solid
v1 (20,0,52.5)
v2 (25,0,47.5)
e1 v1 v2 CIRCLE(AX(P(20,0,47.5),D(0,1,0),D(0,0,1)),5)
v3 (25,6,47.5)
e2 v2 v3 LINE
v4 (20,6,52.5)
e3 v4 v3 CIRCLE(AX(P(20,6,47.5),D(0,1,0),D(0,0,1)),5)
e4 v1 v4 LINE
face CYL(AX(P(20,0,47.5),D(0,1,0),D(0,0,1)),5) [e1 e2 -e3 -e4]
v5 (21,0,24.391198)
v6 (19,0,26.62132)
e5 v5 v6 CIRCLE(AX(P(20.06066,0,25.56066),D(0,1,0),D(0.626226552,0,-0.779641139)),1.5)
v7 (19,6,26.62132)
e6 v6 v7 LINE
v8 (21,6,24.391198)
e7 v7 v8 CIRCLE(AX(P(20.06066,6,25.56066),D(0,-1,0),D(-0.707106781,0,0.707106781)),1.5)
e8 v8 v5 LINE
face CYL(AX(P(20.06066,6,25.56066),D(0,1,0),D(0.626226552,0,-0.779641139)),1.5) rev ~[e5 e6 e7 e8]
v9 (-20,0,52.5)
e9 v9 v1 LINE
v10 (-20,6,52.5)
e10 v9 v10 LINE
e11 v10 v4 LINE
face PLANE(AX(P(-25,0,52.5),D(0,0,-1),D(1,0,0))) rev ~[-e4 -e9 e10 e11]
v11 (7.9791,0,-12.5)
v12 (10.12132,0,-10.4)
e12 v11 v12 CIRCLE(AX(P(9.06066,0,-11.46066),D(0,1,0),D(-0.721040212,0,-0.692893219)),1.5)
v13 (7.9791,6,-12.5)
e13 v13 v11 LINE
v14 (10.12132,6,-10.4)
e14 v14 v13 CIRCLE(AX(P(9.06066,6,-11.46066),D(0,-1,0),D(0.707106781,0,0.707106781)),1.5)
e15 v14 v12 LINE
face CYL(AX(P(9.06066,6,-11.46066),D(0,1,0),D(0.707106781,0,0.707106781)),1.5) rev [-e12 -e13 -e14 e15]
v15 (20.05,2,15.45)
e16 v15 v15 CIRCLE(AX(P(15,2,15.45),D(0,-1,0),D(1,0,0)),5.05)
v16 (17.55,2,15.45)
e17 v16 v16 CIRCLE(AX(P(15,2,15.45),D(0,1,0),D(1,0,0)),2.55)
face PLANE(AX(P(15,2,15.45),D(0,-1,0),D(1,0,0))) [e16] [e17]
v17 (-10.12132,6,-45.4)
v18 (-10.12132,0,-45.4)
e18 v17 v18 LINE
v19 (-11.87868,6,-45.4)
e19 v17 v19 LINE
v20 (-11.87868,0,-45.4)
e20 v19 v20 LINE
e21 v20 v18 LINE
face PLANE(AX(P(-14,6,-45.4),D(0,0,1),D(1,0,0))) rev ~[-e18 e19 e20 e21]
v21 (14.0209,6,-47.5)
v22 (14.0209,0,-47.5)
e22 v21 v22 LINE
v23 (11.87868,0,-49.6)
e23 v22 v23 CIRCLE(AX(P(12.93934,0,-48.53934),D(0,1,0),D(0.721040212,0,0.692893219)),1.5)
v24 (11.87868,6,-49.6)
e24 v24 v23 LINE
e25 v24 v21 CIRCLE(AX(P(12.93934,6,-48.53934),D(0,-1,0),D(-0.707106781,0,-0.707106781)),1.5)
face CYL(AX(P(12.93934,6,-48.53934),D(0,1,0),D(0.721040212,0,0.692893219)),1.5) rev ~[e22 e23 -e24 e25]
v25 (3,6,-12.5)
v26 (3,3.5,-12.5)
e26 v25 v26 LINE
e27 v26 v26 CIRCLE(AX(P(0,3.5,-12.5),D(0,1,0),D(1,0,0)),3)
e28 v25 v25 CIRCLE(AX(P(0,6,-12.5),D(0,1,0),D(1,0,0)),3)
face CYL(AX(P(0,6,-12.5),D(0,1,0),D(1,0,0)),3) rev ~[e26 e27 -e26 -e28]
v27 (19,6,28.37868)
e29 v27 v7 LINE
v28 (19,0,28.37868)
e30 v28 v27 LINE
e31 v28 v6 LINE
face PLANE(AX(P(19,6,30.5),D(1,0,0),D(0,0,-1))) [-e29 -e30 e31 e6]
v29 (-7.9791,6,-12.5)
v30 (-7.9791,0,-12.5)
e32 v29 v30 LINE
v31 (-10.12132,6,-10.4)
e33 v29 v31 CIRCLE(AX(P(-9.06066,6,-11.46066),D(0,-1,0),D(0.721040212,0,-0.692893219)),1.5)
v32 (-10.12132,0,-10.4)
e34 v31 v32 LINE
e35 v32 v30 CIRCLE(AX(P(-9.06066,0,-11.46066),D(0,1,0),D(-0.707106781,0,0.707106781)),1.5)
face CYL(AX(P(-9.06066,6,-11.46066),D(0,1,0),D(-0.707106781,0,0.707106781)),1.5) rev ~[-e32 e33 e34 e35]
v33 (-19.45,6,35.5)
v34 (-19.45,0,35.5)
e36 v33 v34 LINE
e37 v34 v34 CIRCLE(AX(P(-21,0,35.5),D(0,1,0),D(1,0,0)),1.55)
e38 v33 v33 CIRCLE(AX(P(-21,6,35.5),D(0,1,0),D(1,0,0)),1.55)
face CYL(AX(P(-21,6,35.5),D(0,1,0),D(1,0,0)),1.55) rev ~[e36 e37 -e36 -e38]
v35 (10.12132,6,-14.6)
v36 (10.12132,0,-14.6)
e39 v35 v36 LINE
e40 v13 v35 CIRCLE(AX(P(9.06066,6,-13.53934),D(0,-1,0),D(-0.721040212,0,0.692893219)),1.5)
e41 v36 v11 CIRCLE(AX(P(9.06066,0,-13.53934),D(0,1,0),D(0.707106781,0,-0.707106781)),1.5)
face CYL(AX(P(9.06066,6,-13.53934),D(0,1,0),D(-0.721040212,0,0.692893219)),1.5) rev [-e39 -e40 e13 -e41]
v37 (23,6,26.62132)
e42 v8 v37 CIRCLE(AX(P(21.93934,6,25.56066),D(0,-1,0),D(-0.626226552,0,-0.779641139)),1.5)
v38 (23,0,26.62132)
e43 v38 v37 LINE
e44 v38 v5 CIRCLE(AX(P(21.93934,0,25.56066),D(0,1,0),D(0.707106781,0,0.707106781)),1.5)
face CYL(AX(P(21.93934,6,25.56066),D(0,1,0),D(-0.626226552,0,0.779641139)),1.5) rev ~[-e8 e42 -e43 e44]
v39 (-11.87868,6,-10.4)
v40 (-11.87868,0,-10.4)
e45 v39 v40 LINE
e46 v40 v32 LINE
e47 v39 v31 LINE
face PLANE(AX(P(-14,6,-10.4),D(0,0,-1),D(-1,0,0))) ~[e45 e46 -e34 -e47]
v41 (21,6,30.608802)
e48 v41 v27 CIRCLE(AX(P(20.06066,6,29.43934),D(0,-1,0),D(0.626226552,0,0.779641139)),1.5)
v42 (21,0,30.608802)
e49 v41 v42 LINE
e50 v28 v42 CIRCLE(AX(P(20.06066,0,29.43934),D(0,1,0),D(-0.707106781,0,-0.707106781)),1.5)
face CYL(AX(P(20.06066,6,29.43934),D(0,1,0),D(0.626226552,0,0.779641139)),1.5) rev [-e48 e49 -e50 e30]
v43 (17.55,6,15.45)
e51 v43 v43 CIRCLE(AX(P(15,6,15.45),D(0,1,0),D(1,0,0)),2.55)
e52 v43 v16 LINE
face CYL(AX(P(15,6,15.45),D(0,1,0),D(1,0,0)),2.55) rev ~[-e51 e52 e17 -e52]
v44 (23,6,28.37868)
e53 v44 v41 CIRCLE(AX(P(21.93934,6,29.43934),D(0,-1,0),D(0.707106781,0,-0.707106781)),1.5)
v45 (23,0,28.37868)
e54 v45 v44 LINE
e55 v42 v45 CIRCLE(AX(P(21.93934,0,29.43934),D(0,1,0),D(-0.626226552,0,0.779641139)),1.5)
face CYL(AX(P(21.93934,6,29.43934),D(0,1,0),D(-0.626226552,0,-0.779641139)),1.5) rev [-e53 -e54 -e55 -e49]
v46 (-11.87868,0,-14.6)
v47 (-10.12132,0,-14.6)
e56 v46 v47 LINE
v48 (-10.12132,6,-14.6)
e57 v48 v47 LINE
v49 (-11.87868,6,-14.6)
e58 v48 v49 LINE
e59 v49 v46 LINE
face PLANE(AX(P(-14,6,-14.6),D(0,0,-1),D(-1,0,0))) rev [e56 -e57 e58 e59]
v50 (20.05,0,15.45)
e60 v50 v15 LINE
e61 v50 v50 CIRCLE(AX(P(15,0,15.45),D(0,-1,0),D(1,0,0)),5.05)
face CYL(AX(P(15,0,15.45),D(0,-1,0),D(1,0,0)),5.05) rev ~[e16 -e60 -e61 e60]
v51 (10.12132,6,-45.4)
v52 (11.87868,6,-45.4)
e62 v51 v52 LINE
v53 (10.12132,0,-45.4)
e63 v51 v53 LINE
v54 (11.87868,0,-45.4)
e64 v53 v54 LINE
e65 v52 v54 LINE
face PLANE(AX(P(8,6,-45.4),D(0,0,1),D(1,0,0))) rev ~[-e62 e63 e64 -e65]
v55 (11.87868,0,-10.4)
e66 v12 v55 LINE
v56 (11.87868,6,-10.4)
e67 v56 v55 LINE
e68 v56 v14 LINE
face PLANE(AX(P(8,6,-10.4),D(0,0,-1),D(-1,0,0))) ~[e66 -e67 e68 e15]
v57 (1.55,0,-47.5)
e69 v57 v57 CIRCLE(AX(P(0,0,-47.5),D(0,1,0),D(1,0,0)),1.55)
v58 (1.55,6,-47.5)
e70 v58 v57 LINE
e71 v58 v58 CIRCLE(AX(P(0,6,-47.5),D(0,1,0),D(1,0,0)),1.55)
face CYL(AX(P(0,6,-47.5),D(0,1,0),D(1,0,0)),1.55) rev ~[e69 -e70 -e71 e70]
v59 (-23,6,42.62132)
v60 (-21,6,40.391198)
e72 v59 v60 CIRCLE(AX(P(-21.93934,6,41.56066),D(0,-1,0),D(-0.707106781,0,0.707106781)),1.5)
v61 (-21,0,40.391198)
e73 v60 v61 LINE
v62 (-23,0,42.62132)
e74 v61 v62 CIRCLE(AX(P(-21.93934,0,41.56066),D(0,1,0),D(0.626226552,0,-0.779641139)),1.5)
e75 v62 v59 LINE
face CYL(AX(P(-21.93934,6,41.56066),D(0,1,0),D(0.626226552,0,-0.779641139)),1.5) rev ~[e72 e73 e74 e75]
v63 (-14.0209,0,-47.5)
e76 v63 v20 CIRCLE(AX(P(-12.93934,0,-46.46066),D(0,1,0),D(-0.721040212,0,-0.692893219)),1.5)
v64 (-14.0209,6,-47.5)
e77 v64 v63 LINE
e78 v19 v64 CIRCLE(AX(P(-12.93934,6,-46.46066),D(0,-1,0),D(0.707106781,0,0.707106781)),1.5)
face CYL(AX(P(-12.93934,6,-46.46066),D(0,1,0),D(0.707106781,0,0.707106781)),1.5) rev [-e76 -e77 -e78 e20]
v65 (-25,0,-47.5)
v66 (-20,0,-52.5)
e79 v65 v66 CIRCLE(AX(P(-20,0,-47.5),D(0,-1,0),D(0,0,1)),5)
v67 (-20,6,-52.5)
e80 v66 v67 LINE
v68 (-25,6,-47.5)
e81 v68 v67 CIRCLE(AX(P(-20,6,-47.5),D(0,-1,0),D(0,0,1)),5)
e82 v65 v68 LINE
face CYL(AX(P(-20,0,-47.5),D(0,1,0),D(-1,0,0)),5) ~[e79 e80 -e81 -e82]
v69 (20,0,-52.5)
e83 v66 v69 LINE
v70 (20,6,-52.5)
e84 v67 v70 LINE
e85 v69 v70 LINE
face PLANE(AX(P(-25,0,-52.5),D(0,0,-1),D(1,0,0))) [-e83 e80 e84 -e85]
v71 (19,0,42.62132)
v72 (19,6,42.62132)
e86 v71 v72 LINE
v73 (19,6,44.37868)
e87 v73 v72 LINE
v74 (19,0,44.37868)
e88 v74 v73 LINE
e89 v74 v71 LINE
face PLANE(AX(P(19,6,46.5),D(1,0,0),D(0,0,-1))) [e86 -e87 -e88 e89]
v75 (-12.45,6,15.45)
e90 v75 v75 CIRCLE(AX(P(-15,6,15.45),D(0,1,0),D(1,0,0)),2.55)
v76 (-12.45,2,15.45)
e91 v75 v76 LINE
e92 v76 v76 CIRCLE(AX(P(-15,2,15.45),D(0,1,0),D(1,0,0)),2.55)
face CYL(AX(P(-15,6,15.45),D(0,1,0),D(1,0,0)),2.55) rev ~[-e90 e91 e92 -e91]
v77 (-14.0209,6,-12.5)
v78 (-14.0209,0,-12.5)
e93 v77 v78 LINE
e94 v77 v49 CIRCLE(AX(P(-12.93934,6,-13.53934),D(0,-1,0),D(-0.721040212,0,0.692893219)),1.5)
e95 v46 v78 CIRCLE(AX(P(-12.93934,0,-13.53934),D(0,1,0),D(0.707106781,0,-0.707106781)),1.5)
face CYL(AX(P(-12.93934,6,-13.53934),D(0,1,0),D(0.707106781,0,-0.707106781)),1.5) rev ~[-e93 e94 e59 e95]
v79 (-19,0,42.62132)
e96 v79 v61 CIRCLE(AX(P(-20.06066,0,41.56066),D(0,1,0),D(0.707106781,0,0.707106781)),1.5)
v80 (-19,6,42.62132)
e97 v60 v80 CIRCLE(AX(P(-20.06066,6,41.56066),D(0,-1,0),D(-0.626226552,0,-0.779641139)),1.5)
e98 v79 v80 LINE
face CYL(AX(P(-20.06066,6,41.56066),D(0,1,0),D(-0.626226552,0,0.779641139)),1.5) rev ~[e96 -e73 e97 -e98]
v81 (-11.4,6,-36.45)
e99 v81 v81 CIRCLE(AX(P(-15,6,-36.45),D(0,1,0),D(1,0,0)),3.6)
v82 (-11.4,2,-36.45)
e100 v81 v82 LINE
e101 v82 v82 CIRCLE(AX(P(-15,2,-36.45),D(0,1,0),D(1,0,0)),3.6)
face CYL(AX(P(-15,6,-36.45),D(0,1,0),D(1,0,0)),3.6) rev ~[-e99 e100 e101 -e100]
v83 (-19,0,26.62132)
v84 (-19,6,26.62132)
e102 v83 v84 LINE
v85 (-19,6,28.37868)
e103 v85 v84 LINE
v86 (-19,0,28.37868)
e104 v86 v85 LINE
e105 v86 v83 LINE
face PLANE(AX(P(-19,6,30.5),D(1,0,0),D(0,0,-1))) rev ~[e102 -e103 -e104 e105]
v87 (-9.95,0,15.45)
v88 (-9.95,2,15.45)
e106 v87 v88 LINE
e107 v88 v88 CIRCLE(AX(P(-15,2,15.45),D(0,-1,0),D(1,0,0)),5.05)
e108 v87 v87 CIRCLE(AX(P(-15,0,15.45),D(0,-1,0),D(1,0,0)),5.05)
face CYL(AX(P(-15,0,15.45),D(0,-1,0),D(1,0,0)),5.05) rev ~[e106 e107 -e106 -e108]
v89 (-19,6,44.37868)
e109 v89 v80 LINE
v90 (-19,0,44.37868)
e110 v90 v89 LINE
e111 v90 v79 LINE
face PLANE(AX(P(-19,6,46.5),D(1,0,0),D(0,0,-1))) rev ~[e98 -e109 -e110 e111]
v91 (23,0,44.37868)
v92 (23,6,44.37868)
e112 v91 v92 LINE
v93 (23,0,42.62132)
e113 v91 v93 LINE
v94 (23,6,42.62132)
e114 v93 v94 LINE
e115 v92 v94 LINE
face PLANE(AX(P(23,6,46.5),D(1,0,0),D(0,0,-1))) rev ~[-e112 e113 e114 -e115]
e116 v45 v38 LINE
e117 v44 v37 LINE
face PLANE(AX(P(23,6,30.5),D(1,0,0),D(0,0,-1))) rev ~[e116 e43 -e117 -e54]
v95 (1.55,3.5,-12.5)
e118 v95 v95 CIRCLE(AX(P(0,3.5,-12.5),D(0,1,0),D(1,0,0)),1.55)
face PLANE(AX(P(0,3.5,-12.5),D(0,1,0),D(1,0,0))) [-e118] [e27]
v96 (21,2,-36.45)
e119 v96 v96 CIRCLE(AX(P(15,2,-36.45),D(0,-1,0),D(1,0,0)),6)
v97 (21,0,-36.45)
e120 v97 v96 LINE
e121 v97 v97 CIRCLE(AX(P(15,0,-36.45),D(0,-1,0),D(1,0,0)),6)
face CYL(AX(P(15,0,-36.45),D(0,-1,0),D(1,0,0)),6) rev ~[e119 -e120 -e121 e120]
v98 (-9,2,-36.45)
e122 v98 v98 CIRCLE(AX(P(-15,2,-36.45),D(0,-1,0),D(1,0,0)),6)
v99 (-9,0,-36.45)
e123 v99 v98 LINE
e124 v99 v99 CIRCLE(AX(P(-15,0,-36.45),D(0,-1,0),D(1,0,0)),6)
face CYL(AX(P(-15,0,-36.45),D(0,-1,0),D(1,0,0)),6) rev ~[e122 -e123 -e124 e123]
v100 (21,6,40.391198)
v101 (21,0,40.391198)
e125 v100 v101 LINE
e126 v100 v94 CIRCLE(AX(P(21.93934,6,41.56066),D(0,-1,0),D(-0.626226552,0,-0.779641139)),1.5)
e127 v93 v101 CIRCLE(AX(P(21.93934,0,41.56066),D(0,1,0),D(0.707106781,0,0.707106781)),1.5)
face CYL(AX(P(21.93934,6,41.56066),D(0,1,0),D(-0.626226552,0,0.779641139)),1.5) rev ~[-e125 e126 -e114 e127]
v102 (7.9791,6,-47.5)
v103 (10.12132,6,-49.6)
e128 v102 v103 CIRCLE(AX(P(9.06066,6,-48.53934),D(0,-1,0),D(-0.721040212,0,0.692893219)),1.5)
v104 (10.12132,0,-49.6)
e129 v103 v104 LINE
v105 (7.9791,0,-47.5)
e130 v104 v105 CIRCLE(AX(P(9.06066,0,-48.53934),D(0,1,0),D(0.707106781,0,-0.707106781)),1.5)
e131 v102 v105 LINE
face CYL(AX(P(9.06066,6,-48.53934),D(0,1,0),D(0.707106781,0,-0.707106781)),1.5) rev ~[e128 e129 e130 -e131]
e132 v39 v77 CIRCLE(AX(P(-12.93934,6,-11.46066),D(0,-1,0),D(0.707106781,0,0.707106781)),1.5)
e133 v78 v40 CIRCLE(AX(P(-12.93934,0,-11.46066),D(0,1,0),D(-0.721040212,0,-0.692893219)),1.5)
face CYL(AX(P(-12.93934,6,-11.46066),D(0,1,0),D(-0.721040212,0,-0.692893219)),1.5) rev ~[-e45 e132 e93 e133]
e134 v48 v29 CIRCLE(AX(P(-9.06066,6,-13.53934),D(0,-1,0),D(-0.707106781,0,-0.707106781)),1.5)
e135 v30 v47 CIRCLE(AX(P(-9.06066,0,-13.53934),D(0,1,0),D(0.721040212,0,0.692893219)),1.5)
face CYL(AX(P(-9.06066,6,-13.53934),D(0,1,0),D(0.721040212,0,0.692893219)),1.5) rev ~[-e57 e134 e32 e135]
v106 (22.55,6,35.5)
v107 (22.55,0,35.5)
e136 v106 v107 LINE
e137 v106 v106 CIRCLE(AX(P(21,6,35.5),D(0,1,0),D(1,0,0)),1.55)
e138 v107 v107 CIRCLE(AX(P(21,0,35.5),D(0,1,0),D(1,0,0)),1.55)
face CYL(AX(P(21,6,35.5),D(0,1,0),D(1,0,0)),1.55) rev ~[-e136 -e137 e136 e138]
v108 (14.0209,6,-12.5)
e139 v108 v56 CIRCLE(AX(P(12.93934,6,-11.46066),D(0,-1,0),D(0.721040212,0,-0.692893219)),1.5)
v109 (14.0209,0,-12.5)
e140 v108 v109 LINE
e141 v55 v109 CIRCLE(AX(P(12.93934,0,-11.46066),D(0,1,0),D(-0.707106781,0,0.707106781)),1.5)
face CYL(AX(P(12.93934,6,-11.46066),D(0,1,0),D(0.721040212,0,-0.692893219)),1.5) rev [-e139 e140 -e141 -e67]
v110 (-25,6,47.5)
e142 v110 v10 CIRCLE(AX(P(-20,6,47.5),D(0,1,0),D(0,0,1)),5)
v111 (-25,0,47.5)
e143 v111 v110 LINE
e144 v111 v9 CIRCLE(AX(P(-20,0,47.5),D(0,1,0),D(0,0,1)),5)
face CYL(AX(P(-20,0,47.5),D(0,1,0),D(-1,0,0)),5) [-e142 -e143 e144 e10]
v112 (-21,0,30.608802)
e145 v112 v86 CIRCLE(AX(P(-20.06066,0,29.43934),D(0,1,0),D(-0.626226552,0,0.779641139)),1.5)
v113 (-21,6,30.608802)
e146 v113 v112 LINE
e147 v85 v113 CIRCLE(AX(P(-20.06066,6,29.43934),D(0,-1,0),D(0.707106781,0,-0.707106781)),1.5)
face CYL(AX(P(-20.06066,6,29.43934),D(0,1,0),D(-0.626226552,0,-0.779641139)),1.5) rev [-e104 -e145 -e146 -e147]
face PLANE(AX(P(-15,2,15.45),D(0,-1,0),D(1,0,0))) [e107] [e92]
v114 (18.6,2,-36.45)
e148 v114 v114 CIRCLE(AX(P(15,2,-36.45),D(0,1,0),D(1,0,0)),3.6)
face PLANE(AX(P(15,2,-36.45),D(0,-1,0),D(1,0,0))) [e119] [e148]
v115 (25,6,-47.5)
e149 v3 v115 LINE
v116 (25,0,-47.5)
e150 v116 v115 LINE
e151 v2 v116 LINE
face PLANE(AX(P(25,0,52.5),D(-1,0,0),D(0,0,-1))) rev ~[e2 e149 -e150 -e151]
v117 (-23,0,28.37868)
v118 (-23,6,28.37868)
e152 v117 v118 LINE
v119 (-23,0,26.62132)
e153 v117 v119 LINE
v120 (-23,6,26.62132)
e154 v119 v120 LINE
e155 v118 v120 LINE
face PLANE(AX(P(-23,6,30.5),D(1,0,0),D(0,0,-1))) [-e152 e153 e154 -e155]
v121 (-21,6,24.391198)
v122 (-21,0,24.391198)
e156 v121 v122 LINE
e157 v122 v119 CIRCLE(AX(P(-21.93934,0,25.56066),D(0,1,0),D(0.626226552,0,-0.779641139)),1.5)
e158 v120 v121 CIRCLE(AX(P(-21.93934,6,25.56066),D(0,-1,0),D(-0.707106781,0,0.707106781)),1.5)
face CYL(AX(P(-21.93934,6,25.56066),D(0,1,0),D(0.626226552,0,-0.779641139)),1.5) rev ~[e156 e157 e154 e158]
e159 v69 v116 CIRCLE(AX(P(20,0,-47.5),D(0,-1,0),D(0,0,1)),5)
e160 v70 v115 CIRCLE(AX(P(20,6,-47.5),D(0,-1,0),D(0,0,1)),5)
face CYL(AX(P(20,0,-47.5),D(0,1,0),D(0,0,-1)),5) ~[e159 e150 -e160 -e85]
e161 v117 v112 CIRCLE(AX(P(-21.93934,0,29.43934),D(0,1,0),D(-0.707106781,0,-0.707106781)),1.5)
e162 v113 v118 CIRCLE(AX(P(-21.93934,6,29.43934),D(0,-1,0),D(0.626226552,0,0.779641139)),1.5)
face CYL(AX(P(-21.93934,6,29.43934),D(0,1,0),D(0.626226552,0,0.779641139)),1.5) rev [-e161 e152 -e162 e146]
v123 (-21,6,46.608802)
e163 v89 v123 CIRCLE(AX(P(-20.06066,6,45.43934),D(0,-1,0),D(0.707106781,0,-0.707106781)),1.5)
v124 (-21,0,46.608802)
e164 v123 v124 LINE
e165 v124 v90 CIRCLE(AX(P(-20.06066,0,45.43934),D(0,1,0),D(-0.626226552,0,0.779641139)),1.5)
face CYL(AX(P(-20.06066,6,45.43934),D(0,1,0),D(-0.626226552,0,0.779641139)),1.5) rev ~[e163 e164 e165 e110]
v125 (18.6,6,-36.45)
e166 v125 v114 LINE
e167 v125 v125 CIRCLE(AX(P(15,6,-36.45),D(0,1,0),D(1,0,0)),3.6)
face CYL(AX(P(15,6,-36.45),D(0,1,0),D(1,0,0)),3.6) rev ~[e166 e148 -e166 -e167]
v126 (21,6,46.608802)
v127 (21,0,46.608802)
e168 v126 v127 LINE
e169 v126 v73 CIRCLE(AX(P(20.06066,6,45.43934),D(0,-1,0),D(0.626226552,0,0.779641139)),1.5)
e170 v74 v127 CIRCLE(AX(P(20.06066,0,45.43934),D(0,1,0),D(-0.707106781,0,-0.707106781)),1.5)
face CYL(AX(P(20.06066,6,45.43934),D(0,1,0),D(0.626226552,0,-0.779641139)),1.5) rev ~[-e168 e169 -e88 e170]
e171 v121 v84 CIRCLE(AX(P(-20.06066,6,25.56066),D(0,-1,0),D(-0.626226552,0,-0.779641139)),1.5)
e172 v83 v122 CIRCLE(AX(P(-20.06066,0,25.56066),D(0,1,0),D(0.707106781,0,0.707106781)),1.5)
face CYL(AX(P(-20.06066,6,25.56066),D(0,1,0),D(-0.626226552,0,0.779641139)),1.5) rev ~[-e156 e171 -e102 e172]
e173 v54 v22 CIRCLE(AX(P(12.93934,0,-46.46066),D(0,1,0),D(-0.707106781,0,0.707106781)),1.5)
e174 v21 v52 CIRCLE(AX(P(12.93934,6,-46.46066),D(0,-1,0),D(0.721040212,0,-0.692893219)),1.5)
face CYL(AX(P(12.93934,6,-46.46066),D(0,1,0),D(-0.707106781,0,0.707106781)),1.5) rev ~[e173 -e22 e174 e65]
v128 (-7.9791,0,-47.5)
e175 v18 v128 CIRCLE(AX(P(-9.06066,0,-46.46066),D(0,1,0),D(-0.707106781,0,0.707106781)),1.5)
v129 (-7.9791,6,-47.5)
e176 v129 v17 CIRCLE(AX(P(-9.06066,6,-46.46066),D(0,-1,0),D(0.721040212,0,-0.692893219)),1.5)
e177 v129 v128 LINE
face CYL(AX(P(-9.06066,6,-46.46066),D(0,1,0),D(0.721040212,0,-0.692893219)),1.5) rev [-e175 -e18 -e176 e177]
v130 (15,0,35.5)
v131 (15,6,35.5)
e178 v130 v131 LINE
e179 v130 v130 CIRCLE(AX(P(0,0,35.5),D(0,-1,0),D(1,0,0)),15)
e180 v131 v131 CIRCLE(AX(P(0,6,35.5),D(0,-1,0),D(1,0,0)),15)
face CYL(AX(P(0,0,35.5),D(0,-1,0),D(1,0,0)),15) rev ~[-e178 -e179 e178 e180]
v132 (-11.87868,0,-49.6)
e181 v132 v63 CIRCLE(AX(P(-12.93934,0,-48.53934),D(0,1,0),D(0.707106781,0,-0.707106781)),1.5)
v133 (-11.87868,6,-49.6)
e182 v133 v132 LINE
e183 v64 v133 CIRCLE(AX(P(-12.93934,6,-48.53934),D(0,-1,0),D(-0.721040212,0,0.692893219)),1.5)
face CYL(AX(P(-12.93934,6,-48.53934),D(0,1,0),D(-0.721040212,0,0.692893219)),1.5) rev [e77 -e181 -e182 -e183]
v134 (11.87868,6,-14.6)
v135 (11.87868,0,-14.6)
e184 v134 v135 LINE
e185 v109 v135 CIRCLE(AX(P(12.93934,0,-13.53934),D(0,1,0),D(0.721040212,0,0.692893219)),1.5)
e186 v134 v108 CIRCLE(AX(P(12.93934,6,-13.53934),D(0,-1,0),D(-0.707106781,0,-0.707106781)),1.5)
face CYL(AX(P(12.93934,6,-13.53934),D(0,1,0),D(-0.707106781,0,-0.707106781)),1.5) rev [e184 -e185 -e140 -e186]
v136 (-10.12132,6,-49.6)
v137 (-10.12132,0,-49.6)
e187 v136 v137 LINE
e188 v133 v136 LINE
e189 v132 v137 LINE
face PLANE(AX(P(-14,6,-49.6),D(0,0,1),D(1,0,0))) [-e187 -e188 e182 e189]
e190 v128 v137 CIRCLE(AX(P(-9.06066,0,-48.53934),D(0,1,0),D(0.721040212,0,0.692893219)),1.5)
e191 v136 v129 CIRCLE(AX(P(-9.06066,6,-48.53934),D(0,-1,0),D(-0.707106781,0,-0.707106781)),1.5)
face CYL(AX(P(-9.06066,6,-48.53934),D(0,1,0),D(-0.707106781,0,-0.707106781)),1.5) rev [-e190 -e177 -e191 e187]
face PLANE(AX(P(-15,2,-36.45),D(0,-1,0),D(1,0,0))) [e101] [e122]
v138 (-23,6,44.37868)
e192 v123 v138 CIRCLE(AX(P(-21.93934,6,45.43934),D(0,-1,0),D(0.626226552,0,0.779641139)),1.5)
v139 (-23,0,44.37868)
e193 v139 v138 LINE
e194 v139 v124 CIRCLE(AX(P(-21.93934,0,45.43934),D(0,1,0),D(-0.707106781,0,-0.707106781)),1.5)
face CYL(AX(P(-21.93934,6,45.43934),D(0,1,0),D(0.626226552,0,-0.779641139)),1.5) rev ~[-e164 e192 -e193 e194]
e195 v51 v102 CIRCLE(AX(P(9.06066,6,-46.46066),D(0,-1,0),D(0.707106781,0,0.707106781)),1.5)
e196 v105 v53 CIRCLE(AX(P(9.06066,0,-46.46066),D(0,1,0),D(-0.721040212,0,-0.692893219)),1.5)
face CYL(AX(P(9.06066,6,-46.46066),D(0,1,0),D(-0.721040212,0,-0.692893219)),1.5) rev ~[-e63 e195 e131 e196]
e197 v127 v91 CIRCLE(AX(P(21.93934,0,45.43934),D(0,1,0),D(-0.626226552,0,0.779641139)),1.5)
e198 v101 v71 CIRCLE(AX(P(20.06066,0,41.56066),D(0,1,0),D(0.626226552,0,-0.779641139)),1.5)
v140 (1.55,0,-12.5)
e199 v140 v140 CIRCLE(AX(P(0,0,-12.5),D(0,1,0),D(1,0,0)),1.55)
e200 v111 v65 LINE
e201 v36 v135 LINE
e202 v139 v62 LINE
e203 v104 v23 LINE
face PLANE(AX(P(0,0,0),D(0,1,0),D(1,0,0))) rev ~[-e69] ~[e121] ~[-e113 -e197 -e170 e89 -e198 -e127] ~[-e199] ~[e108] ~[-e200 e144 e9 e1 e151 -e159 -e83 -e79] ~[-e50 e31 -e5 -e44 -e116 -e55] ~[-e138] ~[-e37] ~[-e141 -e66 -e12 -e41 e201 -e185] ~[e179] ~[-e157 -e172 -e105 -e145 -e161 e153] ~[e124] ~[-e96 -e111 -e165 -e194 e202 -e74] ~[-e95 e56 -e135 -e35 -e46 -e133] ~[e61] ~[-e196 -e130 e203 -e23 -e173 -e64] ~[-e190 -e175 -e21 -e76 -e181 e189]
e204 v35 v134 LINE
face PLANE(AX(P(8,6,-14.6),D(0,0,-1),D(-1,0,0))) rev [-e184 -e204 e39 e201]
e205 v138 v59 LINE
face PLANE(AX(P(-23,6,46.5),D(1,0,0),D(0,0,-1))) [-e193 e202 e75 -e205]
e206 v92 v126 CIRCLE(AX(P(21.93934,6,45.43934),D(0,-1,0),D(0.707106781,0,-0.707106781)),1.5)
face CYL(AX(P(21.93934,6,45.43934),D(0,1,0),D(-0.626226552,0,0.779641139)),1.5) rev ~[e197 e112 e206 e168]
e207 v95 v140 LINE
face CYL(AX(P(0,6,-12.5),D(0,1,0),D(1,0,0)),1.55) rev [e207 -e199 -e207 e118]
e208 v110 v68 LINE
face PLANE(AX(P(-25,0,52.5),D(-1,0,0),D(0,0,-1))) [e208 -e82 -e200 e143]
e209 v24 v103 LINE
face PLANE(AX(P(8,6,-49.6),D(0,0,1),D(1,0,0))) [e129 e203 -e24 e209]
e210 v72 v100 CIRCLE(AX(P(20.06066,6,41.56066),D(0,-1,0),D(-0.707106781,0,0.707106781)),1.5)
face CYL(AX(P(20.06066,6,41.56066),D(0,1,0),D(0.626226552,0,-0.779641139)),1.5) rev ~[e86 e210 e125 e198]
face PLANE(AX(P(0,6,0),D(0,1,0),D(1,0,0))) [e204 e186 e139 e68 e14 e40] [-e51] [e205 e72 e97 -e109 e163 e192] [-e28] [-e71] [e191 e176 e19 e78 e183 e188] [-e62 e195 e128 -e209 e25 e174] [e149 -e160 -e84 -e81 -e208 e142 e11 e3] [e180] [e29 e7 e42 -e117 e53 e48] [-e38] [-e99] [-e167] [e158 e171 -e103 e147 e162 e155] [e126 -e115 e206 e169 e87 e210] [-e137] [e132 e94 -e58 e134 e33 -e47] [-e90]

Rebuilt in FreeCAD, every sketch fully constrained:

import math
import FreeCAD as App
import Part
import Sketcher
from FreeCAD import Vector
Q = App.Units.Quantity


def edges_at(feature, points):
    """Names of the edges that pass closest to the given points."""
    edges = feature.Shape.Edges
    near = lambda p: min(range(len(edges)), key=lambda i: edges[i].distToShape(Part.Vertex(*p))[0])
    return sorted({f"Edge{near(p) + 1}" for p in points})


def add_polygon(sketch, points):
    """Adds a closed chain of lines whose ends are joined by coincident constraints."""
    first, n = sketch.GeometryCount, len(points)
    for a, b in zip(points, points[1:] + points[:1]):
        sketch.addGeometry(Part.LineSegment(App.Vector(*a, 0), App.Vector(*b, 0)), False)
    for i in range(n):
        sketch.addConstraint(Sketcher.Constraint("Coincident", first + i, 2, first + (i + 1) % n, 1))

doc = App.newDocument("Part")
body = doc.addObject("PartDesign::Body", "Body")

# Sketch on XZ plane
sketch1 = body.newObject("Sketcher::SketchObject", "Sketch")
sketch1.AttachmentSupport = (doc.getObject("XZ_Plane"), [""])
sketch1.MapMode = "FlatFace"
add_polygon(sketch1, [(-25, -52), (-25, 52), (25, 52), (25, -52)])  # lines 0-3
sketch1.addConstraint(Sketcher.Constraint("Vertical", 0))
sketch1.addConstraint(Sketcher.Constraint("Horizontal", 1))
sketch1.addConstraint(Sketcher.Constraint("Vertical", 2))
sketch1.addConstraint(Sketcher.Constraint("Horizontal", 3))
sketch1.addConstraint(Sketcher.Constraint("Symmetric", 0, 2, 2, 2, -1, 1))
sketch1.addConstraint(Sketcher.Constraint("DistanceX", 1, 1, 1, 2, Q("50 mm")))
sketch1.addConstraint(Sketcher.Constraint("DistanceY", 0, 1, 0, 2, Q("105 mm")))
pad1 = body.newObject("PartDesign::Pad", "Pad")
pad1.Profile = sketch1
pad1.Length = 6
pad1.Reversed = True

# Sketch on XZ plane
sketch2 = body.newObject("Sketcher::SketchObject", "Sketch001")
sketch2.AttachmentSupport = (doc.getObject("XZ_Plane"), [""])
sketch2.MapMode = "FlatFace"
sketch2.AttachmentOffset = App.Placement(Vector(0, 0, -6), App.Rotation())
sketch2.addGeometry(Part.Circle(Vector(-15, -36.5, 0), Vector(0, 0, 1), 3.6), False)
sketch2.addGeometry(Part.Circle(Vector(15, -36.5, 0), Vector(0, 0, 1), 3.6), False)
sketch2.addGeometry(Part.Circle(Vector(15, 15.4, 0), Vector(0, 0, 1), 2.5), False)
sketch2.addGeometry(Part.Circle(Vector(-15, 15.4, 0), Vector(0, 0, 1), 2.5), False)
sketch2.addConstraint(Sketcher.Constraint("Equal", 0, 1))
sketch2.addConstraint(Sketcher.Constraint("Equal", 2, 3))
sketch2.addConstraint(Sketcher.Constraint("Symmetric", 0, 3, 1, 3, -2))
sketch2.addConstraint(Sketcher.Constraint("Symmetric", 2, 3, 3, 3, -2))
sketch2.addConstraint(Sketcher.Constraint("Vertical", 1, 3, 2, 3))
sketch2.addConstraint(Sketcher.Constraint("Diameter", 0, Q("7.2 mm")))
sketch2.addConstraint(Sketcher.Constraint("Diameter", 2, Q("5.1 mm")))
sketch2.addConstraint(Sketcher.Constraint("DistanceX", 0, 3, -1, 1, Q("15 mm")))
sketch2.addConstraint(Sketcher.Constraint("DistanceY", 1, 3, 2, 3, Q("51.9 mm")))
sketch2.addConstraint(Sketcher.Constraint("DistanceY", 0, 3, -1, 1, Q("36.45 mm")))
pocket1 = body.newObject("PartDesign::Pocket", "Pocket")
pocket1.Profile = sketch2
pocket1.Type = "ThroughAll"
pocket1.Reversed = True

# Sketch on XZ plane
sketch3 = body.newObject("Sketcher::SketchObject", "Sketch002")
sketch3.AttachmentSupport = (doc.getObject("XZ_Plane"), [""])
sketch3.MapMode = "FlatFace"
sketch3.addGeometry(Part.Circle(Vector(15, -36, 0), Vector(0, 0, 1), 6), False)
sketch3.addGeometry(Part.Circle(Vector(-15, -36, 0), Vector(0, 0, 1), 6), False)
sketch3.addGeometry(Part.Circle(Vector(-15, 15, 0), Vector(0, 0, 1), 5), False)
sketch3.addGeometry(Part.Circle(Vector(15, 15, 0), Vector(0, 0, 1), 5), False)
sketch3.addConstraint(Sketcher.Constraint("Equal", 0, 1))
sketch3.addConstraint(Sketcher.Constraint("Equal", 2, 3))
sketch3.addConstraint(Sketcher.Constraint("Symmetric", 0, 3, 1, 3, -2))
sketch3.addConstraint(Sketcher.Constraint("Symmetric", 2, 3, 3, 3, -2))
sketch3.addConstraint(Sketcher.Constraint("Vertical", 1, 3, 2, 3))
sketch3.addConstraint(Sketcher.Constraint("Diameter", 0, Q("12 mm")))
sketch3.addConstraint(Sketcher.Constraint("Diameter", 2, Q("10.1 mm")))
sketch3.addConstraint(Sketcher.Constraint("DistanceX", -1, 1, 0, 3, Q("15 mm")))
sketch3.addConstraint(Sketcher.Constraint("DistanceY", 1, 3, 2, 3, Q("51.9 mm")))
sketch3.addConstraint(Sketcher.Constraint("DistanceY", 0, 3, -1, 1, Q("36.45 mm")))
pocket2 = body.newObject("PartDesign::Pocket", "Pocket001")
pocket2.Profile = sketch3
pocket2.Length = 2

# Sketch on XZ plane
sketch4 = body.newObject("Sketcher::SketchObject", "Sketch003")
sketch4.AttachmentSupport = (doc.getObject("XZ_Plane"), [""])
sketch4.MapMode = "FlatFace"
sketch4.AttachmentOffset = App.Placement(Vector(0, 0, -6), App.Rotation())
sketch4.addGeometry(Part.Circle(Vector(0, -47.5, 0), Vector(0, 0, 1), 1.6), False)  # 0
add_polygon(sketch4, [(-14, -49.6), (-14, -45.4), (-8, -45.4), (-8, -49.6)])  # lines 1-4
add_polygon(sketch4, [(8, -49.6), (8, -45.4), (14, -45.4), (14, -49.6)])  # lines 5-8
sketch4.addConstraint(Sketcher.Constraint("Vertical", 1))
sketch4.addConstraint(Sketcher.Constraint("Horizontal", 2))
sketch4.addConstraint(Sketcher.Constraint("Vertical", 3))
sketch4.addConstraint(Sketcher.Constraint("Horizontal", 4))
sketch4.addConstraint(Sketcher.Constraint("Vertical", 5))
sketch4.addConstraint(Sketcher.Constraint("Horizontal", 6))
sketch4.addConstraint(Sketcher.Constraint("Vertical", 7))
sketch4.addConstraint(Sketcher.Constraint("Horizontal", 8))
sketch4.addConstraint(Sketcher.Constraint("Symmetric", 2, 2, 5, 2, -2))
sketch4.addConstraint(Sketcher.Constraint("Symmetric", 4, 2, 7, 2, -2))
sketch4.addConstraint(Sketcher.Constraint("PointOnObject", 0, 3, -2))
sketch4.addConstraint(Sketcher.Constraint("Diameter", 0, Q("3.1 mm")))
sketch4.addConstraint(Sketcher.Constraint("DistanceX", 2, 1, 2, 2, Q("6 mm")))
sketch4.addConstraint(Sketcher.Constraint("DistanceY", 1, 1, 1, 2, Q("4.2 mm")))
sketch4.addConstraint(Sketcher.Constraint("DistanceX", 1, 2, -1, 1, Q("14 mm")))
sketch4.addConstraint(Sketcher.Constraint("DistanceY", 0, 3, -1, 1, Q("47.5 mm")))
sketch4.addConstraint(Sketcher.Constraint("DistanceY", 1, 2, -1, 1, Q("45.4 mm")))
pocket3 = body.newObject("PartDesign::Pocket", "Pocket002")
pocket3.Profile = sketch4
pocket3.Type = "ThroughAll"
pocket3.Reversed = True

# Sketch on XZ plane
sketch5 = body.newObject("Sketcher::SketchObject", "Sketch004")
sketch5.AttachmentSupport = (doc.getObject("XZ_Plane"), [""])
sketch5.MapMode = "FlatFace"
sketch5.AttachmentOffset = App.Placement(Vector(0, 0, -6), App.Rotation())
sketch5.addGeometry(Part.LineSegment(Vector(-10.1, -49.6, 0), Vector(-11.9, -49.6, 0)), False)
sketch5.addGeometry(Part.ArcOfCircle(Part.Circle(Vector(-12.9, -48.5, 0), Vector(0, 0, 1), 1.5), math.radians(136), math.radians(315)), False)
sketch5.addGeometry(Part.ArcOfCircle(Part.Circle(Vector(-12.9, -46.5, 0), Vector(0, 0, 1), 1.5), math.radians(45), math.radians(224)), False)
sketch5.addGeometry(Part.LineSegment(Vector(-11.9, -45.4, 0), Vector(-10.1, -45.4, 0)), False)
sketch5.addGeometry(Part.ArcOfCircle(Part.Circle(Vector(-9.1, -46.5, 0), Vector(0, 0, 1), 1.5), math.radians(-44), math.radians(135)), False)
sketch5.addGeometry(Part.ArcOfCircle(Part.Circle(Vector(-9.1, -48.5, 0), Vector(0, 0, 1), 1.5), math.radians(-135), math.radians(44)), False)
sketch5.addGeometry(Part.LineSegment(Vector(10.1, -45.4, 0), Vector(11.9, -45.4, 0)), False)
sketch5.addGeometry(Part.ArcOfCircle(Part.Circle(Vector(12.9, -46.5, 0), Vector(0, 0, 1), 1.5), math.radians(-44), math.radians(135)), False)
sketch5.addGeometry(Part.ArcOfCircle(Part.Circle(Vector(12.9, -48.5, 0), Vector(0, 0, 1), 1.5), math.radians(-135), math.radians(44)), False)
sketch5.addGeometry(Part.LineSegment(Vector(11.9, -49.6, 0), Vector(10.1, -49.6, 0)), False)
sketch5.addGeometry(Part.ArcOfCircle(Part.Circle(Vector(9.1, -48.5, 0), Vector(0, 0, 1), 1.5), math.radians(136), math.radians(315)), False)
sketch5.addGeometry(Part.ArcOfCircle(Part.Circle(Vector(9.1, -46.5, 0), Vector(0, 0, 1), 1.5), math.radians(45), math.radians(224)), False)
sketch5.addConstraint(Sketcher.Constraint("Coincident", 0, 2, 1, 2))
sketch5.addConstraint(Sketcher.Constraint("Coincident", 1, 1, 2, 2))
sketch5.addConstraint(Sketcher.Constraint("Coincident", 2, 1, 3, 1))
sketch5.addConstraint(Sketcher.Constraint("Coincident", 3, 2, 4, 2))
sketch5.addConstraint(Sketcher.Constraint("Coincident", 4, 1, 5, 2))
sketch5.addConstraint(Sketcher.Constraint("Coincident", 5, 1, 0, 1))
sketch5.addConstraint(Sketcher.Constraint("Coincident", 6, 2, 7, 2))
sketch5.addConstraint(Sketcher.Constraint("Coincident", 7, 1, 8, 2))
sketch5.addConstraint(Sketcher.Constraint("Coincident", 8, 1, 9, 1))
sketch5.addConstraint(Sketcher.Constraint("Coincident", 9, 2, 10, 2))
sketch5.addConstraint(Sketcher.Constraint("Coincident", 10, 1, 11, 2))
sketch5.addConstraint(Sketcher.Constraint("Coincident", 11, 1, 6, 1))
sketch5.addConstraint(Sketcher.Constraint("Horizontal", 0))
sketch5.addConstraint(Sketcher.Constraint("Horizontal", 3))
sketch5.addConstraint(Sketcher.Constraint("Horizontal", 6))
sketch5.addConstraint(Sketcher.Constraint("Horizontal", 9))
sketch5.addConstraint(Sketcher.Constraint("Equal", 1, 2))
sketch5.addConstraint(Sketcher.Constraint("Equal", 2, 4))
sketch5.addConstraint(Sketcher.Constraint("Equal", 4, 5))
sketch5.addConstraint(Sketcher.Constraint("Equal", 5, 7))
sketch5.addConstraint(Sketcher.Constraint("Equal", 7, 8))
sketch5.addConstraint(Sketcher.Constraint("Equal", 8, 10))
sketch5.addConstraint(Sketcher.Constraint("Equal", 10, 11))
sketch5.addConstraint(Sketcher.Constraint("Symmetric", 2, 3, 7, 3, -2))
sketch5.addConstraint(Sketcher.Constraint("Symmetric", 1, 3, 8, 3, -2))
sketch5.addConstraint(Sketcher.Constraint("Symmetric", 5, 3, 10, 3, -2))
sketch5.addConstraint(Sketcher.Constraint("Symmetric", 4, 3, 11, 3, -2))
sketch5.addConstraint(Sketcher.Constraint("Horizontal", 2, 3, 4, 3))
sketch5.addConstraint(Sketcher.Constraint("Horizontal", 1, 3, 5, 3))
sketch5.addConstraint(Sketcher.Constraint("Horizontal", 1, 1, 4, 1))
sketch5.addConstraint(Sketcher.Constraint("Horizontal", 3, 2, 6, 2))
sketch5.addConstraint(Sketcher.Constraint("Horizontal", 5, 1, 8, 1))
sketch5.addConstraint(Sketcher.Constraint("Vertical", 1, 3, 2, 3))
sketch5.addConstraint(Sketcher.Constraint("Vertical", 0, 2, 2, 1))
sketch5.addConstraint(Sketcher.Constraint("Radius", 1, Q("1.5 mm")))
sketch5.addConstraint(Sketcher.Constraint("DistanceX", 4, 3, 7, 3, Q("22 mm")))
sketch5.addConstraint(Sketcher.Constraint("DistanceY", 0, 2, -1, 1, Q("49.6 mm")))
sketch5.addConstraint(Sketcher.Constraint("DistanceY", 1, 1, -1, 1, Q("47.5 mm")))
sketch5.addConstraint(Sketcher.Constraint("DistanceX", 0, 2, 0, 1, Q("1.757359 mm")))
sketch5.addConstraint(Sketcher.Constraint("DistanceX", 1, 1, -1, 1, Q("14.0209 mm")))
pocket4 = body.newObject("PartDesign::Pocket", "Pocket003")
pocket4.Profile = sketch5
pocket4.Type = "ThroughAll"
pocket4.Reversed = True
doc.recompute()

datumplane = body.newObject("PartDesign::Plane", "DatumPlane")
datumplane.AttachmentSupport = (doc.getObject("XY_Plane"), [""])
datumplane.MapMode = "FlatFace"
datumplane.AttachmentOffset = App.Placement(Vector(0, 0, -30), App.Rotation())
mirrored = body.newObject("PartDesign::Mirrored", "Mirrored")
mirrored.Originals = [pocket3, pocket4]
mirrored.MirrorPlane = (datumplane, [""])
body.Tip = mirrored

# Sketch on XZ plane
sketch6 = body.newObject("Sketcher::SketchObject", "Sketch005")
sketch6.AttachmentSupport = (doc.getObject("XZ_Plane"), [""])
sketch6.MapMode = "FlatFace"
sketch6.AttachmentOffset = App.Placement(Vector(0, 0, -6), App.Rotation())
sketch6.addGeometry(Part.Circle(Vector(0, -12.5, 0), Vector(0, 0, 1), 3), False)
sketch6.addConstraint(Sketcher.Constraint("PointOnObject", 0, 3, -2))
sketch6.addConstraint(Sketcher.Constraint("Diameter", 0, Q("6 mm")))
sketch6.addConstraint(Sketcher.Constraint("DistanceY", 0, 3, -1, 1, Q("12.5 mm")))
pocket5 = body.newObject("PartDesign::Pocket", "Pocket004")
pocket5.Profile = sketch6
pocket5.Length = 2.5
pocket5.Reversed = True

# Sketch on XZ plane
sketch7 = body.newObject("Sketcher::SketchObject", "Sketch006")
sketch7.AttachmentSupport = (doc.getObject("XZ_Plane"), [""])
sketch7.MapMode = "FlatFace"
sketch7.addGeometry(Part.Circle(Vector(0, 36, 0), Vector(0, 0, 1), 15), False)
sketch7.addConstraint(Sketcher.Constraint("PointOnObject", 0, 3, -2))
sketch7.addConstraint(Sketcher.Constraint("Diameter", 0, Q("30 mm")))
sketch7.addConstraint(Sketcher.Constraint("DistanceY", -1, 1, 0, 3, Q("35.5 mm")))
pocket6 = body.newObject("PartDesign::Pocket", "Pocket005")
pocket6.Profile = sketch7
pocket6.Type = "ThroughAll"

# Sketch on XZ plane
sketch8 = body.newObject("Sketcher::SketchObject", "Sketch007")
sketch8.AttachmentSupport = (doc.getObject("XZ_Plane"), [""])
sketch8.MapMode = "FlatFace"
sketch8.AttachmentOffset = App.Placement(Vector(0, 0, -6), App.Rotation())
sketch8.addGeometry(Part.Circle(Vector(21, 35.5, 0), Vector(0, 0, 1), 1.6), False)  # 0
sketch8.addGeometry(Part.Circle(Vector(-21, 35.5, 0), Vector(0, 0, 1), 1.6), False)  # 1
add_polygon(sketch8, [(-23, 40.5), (-23, 46.5), (-19, 46.5), (-19, 40.5)])  # lines 2-5
add_polygon(sketch8, [(19, 40.5), (19, 46.5), (23, 46.5), (23, 40.5)])  # lines 6-9
add_polygon(sketch8, [(19, 24.5), (19, 30.5), (23, 30.5), (23, 24.5)])  # lines 10-13
add_polygon(sketch8, [(-23, 24.5), (-23, 30.5), (-19, 30.5), (-19, 24.5)])  # lines 14-17
sketch8.addConstraint(Sketcher.Constraint("Vertical", 2))
sketch8.addConstraint(Sketcher.Constraint("Horizontal", 3))
sketch8.addConstraint(Sketcher.Constraint("Vertical", 4))
sketch8.addConstraint(Sketcher.Constraint("Horizontal", 5))
sketch8.addConstraint(Sketcher.Constraint("Vertical", 6))
sketch8.addConstraint(Sketcher.Constraint("Horizontal", 7))
sketch8.addConstraint(Sketcher.Constraint("Vertical", 8))
sketch8.addConstraint(Sketcher.Constraint("Horizontal", 9))
sketch8.addConstraint(Sketcher.Constraint("Vertical", 10))
sketch8.addConstraint(Sketcher.Constraint("Horizontal", 11))
sketch8.addConstraint(Sketcher.Constraint("Vertical", 12))
sketch8.addConstraint(Sketcher.Constraint("Horizontal", 13))
sketch8.addConstraint(Sketcher.Constraint("Vertical", 14))
sketch8.addConstraint(Sketcher.Constraint("Horizontal", 15))
sketch8.addConstraint(Sketcher.Constraint("Vertical", 16))
sketch8.addConstraint(Sketcher.Constraint("Horizontal", 17))
sketch8.addConstraint(Sketcher.Constraint("Equal", 0, 1))
sketch8.addConstraint(Sketcher.Constraint("Symmetric", 0, 3, 1, 3, -2))
sketch8.addConstraint(Sketcher.Constraint("Symmetric", 3, 2, 6, 2, -2))
sketch8.addConstraint(Sketcher.Constraint("Symmetric", 5, 2, 8, 2, -2))
sketch8.addConstraint(Sketcher.Constraint("Symmetric", 11, 2, 14, 2, -2))
sketch8.addConstraint(Sketcher.Constraint("Symmetric", 13, 2, 16, 2, -2))
sketch8.addConstraint(Sketcher.Constraint("Vertical", 9, 2, 10, 2))
sketch8.addConstraint(Sketcher.Constraint("Vertical", 8, 2, 11, 2))
sketch8.addConstraint(Sketcher.Constraint("Equal", 8, 10))
sketch8.addConstraint(Sketcher.Constraint("Diameter", 0, Q("3.1 mm")))
sketch8.addConstraint(Sketcher.Constraint("DistanceX", 3, 1, 3, 2, Q("4 mm")))
sketch8.addConstraint(Sketcher.Constraint("DistanceY", 2, 1, 2, 2, Q("6 mm")))
sketch8.addConstraint(Sketcher.Constraint("DistanceX", -1, 1, 0, 3, Q("21 mm")))
sketch8.addConstraint(Sketcher.Constraint("DistanceX", 2, 2, -1, 1, Q("23 mm")))
sketch8.addConstraint(Sketcher.Constraint("DistanceY", 1, 3, 2, 2, Q("11 mm")))
sketch8.addConstraint(Sketcher.Constraint("DistanceY", 10, 2, 0, 3, Q("5 mm")))
sketch8.addConstraint(Sketcher.Constraint("DistanceY", -1, 1, 0, 3, Q("35.5 mm")))
pocket7 = body.newObject("PartDesign::Pocket", "Pocket006")
pocket7.Profile = sketch8
pocket7.Type = "ThroughAll"
pocket7.Reversed = True
doc.recompute()

fillet = body.newObject("PartDesign::Fillet", "Fillet")
fillet.Base = (pocket7, edges_at(pocket7, [
    (25, 3, 52.5),
    (-25, 3, 52.5),
    (-25, 3, -52.5),
    (25, 3, -52.5),
]))
fillet.Radius = 5

# Sketch on XZ plane
sketch9 = body.newObject("Sketcher::SketchObject", "Sketch008")
sketch9.AttachmentSupport = (doc.getObject("XZ_Plane"), [""])
sketch9.MapMode = "FlatFace"
sketch9.AttachmentOffset = App.Placement(Vector(0, 0, -6), App.Rotation())
sketch9.addGeometry(Part.ArcOfCircle(Part.Circle(Vector(-21.9, 25.6, 0), Vector(0, 0, 1), 1.5), math.radians(51), math.radians(309)), False)
sketch9.addGeometry(Part.ArcOfCircle(Part.Circle(Vector(-20.1, 25.6, 0), Vector(0, 0, 1), 1.5), math.radians(-129), math.radians(129)), False)
sketch9.addGeometry(Part.ArcOfCircle(Part.Circle(Vector(-21.9, 29.4, 0), Vector(0, 0, 1), 1.5), math.radians(51), math.radians(309)), False)
sketch9.addGeometry(Part.ArcOfCircle(Part.Circle(Vector(-20.1, 29.4, 0), Vector(0, 0, 1), 1.5), math.radians(-129), math.radians(129)), False)
sketch9.addGeometry(Part.ArcOfCircle(Part.Circle(Vector(-20.1, 45.4, 0), Vector(0, 0, 1), 1.5), math.radians(-129), math.radians(129)), False)
sketch9.addGeometry(Part.ArcOfCircle(Part.Circle(Vector(-21.9, 45.4, 0), Vector(0, 0, 1), 1.5), math.radians(51), math.radians(309)), False)
sketch9.addGeometry(Part.ArcOfCircle(Part.Circle(Vector(-21.9, 41.6, 0), Vector(0, 0, 1), 1.5), math.radians(51), math.radians(309)), False)
sketch9.addGeometry(Part.ArcOfCircle(Part.Circle(Vector(-20.1, 41.6, 0), Vector(0, 0, 1), 1.5), math.radians(-129), math.radians(129)), False)
sketch9.addGeometry(Part.ArcOfCircle(Part.Circle(Vector(20.1, 25.6, 0), Vector(0, 0, 1), 1.5), math.radians(51), math.radians(309)), False)
sketch9.addGeometry(Part.ArcOfCircle(Part.Circle(Vector(21.9, 25.6, 0), Vector(0, 0, 1), 1.5), math.radians(-129), math.radians(129)), False)
sketch9.addGeometry(Part.ArcOfCircle(Part.Circle(Vector(20.1, 29.4, 0), Vector(0, 0, 1), 1.5), math.radians(51), math.radians(309)), False)
sketch9.addGeometry(Part.ArcOfCircle(Part.Circle(Vector(21.9, 29.4, 0), Vector(0, 0, 1), 1.5), math.radians(-129), math.radians(129)), False)
sketch9.addGeometry(Part.ArcOfCircle(Part.Circle(Vector(20.1, 41.6, 0), Vector(0, 0, 1), 1.5), math.radians(51), math.radians(309)), False)
sketch9.addGeometry(Part.ArcOfCircle(Part.Circle(Vector(21.9, 41.6, 0), Vector(0, 0, 1), 1.5), math.radians(-129), math.radians(129)), False)
sketch9.addGeometry(Part.ArcOfCircle(Part.Circle(Vector(21.9, 45.4, 0), Vector(0, 0, 1), 1.5), math.radians(-129), math.radians(129)), False)
sketch9.addGeometry(Part.ArcOfCircle(Part.Circle(Vector(20.1, 45.4, 0), Vector(0, 0, 1), 1.5), math.radians(51), math.radians(309)), False)
sketch9.addConstraint(Sketcher.Constraint("Coincident", 0, 1, 1, 2))
sketch9.addConstraint(Sketcher.Constraint("Coincident", 1, 1, 0, 2))
sketch9.addConstraint(Sketcher.Constraint("Coincident", 2, 1, 3, 2))
sketch9.addConstraint(Sketcher.Constraint("Coincident", 3, 1, 2, 2))
sketch9.addConstraint(Sketcher.Constraint("Coincident", 4, 1, 5, 2))
sketch9.addConstraint(Sketcher.Constraint("Coincident", 5, 1, 4, 2))
sketch9.addConstraint(Sketcher.Constraint("Coincident", 6, 1, 7, 2))
sketch9.addConstraint(Sketcher.Constraint("Coincident", 7, 1, 6, 2))
sketch9.addConstraint(Sketcher.Constraint("Coincident", 8, 1, 9, 2))
sketch9.addConstraint(Sketcher.Constraint("Coincident", 9, 1, 8, 2))
sketch9.addConstraint(Sketcher.Constraint("Coincident", 10, 1, 11, 2))
sketch9.addConstraint(Sketcher.Constraint("Coincident", 11, 1, 10, 2))
sketch9.addConstraint(Sketcher.Constraint("Coincident", 12, 1, 13, 2))
sketch9.addConstraint(Sketcher.Constraint("Coincident", 13, 1, 12, 2))
sketch9.addConstraint(Sketcher.Constraint("Coincident", 14, 1, 15, 2))
sketch9.addConstraint(Sketcher.Constraint("Coincident", 15, 1, 14, 2))
sketch9.addConstraint(Sketcher.Constraint("Equal", 0, 1))
sketch9.addConstraint(Sketcher.Constraint("Equal", 1, 2))
sketch9.addConstraint(Sketcher.Constraint("Equal", 2, 3))
sketch9.addConstraint(Sketcher.Constraint("Equal", 3, 4))
sketch9.addConstraint(Sketcher.Constraint("Equal", 4, 5))
sketch9.addConstraint(Sketcher.Constraint("Equal", 5, 6))
sketch9.addConstraint(Sketcher.Constraint("Equal", 6, 7))
sketch9.addConstraint(Sketcher.Constraint("Equal", 7, 8))
sketch9.addConstraint(Sketcher.Constraint("Equal", 8, 9))
sketch9.addConstraint(Sketcher.Constraint("Equal", 9, 10))
sketch9.addConstraint(Sketcher.Constraint("Equal", 10, 11))
sketch9.addConstraint(Sketcher.Constraint("Equal", 11, 12))
sketch9.addConstraint(Sketcher.Constraint("Equal", 12, 13))
sketch9.addConstraint(Sketcher.Constraint("Equal", 13, 14))
sketch9.addConstraint(Sketcher.Constraint("Equal", 14, 15))
sketch9.addConstraint(Sketcher.Constraint("Symmetric", 1, 3, 8, 3, -2))
sketch9.addConstraint(Sketcher.Constraint("Symmetric", 0, 3, 9, 3, -2))
sketch9.addConstraint(Sketcher.Constraint("Symmetric", 3, 3, 10, 3, -2))
sketch9.addConstraint(Sketcher.Constraint("Symmetric", 2, 3, 11, 3, -2))
sketch9.addConstraint(Sketcher.Constraint("Symmetric", 7, 3, 12, 3, -2))
sketch9.addConstraint(Sketcher.Constraint("Symmetric", 6, 3, 13, 3, -2))
sketch9.addConstraint(Sketcher.Constraint("Symmetric", 5, 3, 14, 3, -2))
sketch9.addConstraint(Sketcher.Constraint("Symmetric", 4, 3, 15, 3, -2))
sketch9.addConstraint(Sketcher.Constraint("Horizontal", 0, 3, 1, 3))
sketch9.addConstraint(Sketcher.Constraint("Horizontal", 2, 3, 3, 3))
sketch9.addConstraint(Sketcher.Constraint("Horizontal", 4, 3, 5, 3))
sketch9.addConstraint(Sketcher.Constraint("Horizontal", 6, 3, 7, 3))
sketch9.addConstraint(Sketcher.Constraint("Vertical", 0, 3, 2, 3))
sketch9.addConstraint(Sketcher.Constraint("Vertical", 1, 3, 3, 3))
sketch9.addConstraint(Sketcher.Constraint("Vertical", 3, 3, 4, 3))
sketch9.addConstraint(Sketcher.Constraint("Vertical", 2, 3, 5, 3))
sketch9.addConstraint(Sketcher.Constraint("Vertical", 5, 3, 6, 3))
sketch9.addConstraint(Sketcher.Constraint("Vertical", 4, 3, 7, 3))
sketch9.addConstraint(Sketcher.Constraint("Radius", 0, Q("1.5 mm")))
sketch9.addConstraint(Sketcher.Constraint("DistanceX", 0, 1, -1, 1, Q("21 mm")))
sketch9.addConstraint(Sketcher.Constraint("DistanceY", 3, 3, 4, 3, Q("16 mm")))
sketch9.addConstraint(Sketcher.Constraint("DistanceY", 0, 3, 6, 3, Q("16 mm")))
sketch9.addConstraint(Sketcher.Constraint("DistanceY", -1, 1, 1, 1, Q("24.391198 mm")))
sketch9.addConstraint(Sketcher.Constraint("DistanceY", -1, 1, 2, 1, Q("30.608802 mm")))
sketch9.addConstraint(Sketcher.Constraint("DistanceX", 0, 3, -1, 1, Q("21.93934 mm")))
pocket8 = body.newObject("PartDesign::Pocket", "Pocket007")
pocket8.Profile = sketch9
pocket8.Type = "ThroughAll"
pocket8.Reversed = True

doc.recompute()
